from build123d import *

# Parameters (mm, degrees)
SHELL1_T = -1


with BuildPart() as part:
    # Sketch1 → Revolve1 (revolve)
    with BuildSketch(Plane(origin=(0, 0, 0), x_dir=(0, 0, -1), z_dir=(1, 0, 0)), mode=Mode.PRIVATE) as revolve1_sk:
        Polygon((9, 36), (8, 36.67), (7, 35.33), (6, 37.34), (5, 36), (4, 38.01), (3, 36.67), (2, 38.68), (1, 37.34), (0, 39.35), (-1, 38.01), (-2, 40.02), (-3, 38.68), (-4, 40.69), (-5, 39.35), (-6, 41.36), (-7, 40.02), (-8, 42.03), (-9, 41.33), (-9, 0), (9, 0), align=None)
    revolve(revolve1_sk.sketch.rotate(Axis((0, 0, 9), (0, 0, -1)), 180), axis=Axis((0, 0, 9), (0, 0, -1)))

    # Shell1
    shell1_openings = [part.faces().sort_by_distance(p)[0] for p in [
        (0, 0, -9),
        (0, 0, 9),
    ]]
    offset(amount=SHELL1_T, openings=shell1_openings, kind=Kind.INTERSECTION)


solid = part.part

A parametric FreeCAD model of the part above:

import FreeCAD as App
import Part
import Sketcher
from FreeCAD import Vector
Q = App.Units.Quantity


def faces_at(feature, points):
    """Names of the faces that lie closest to the given points."""
    faces = feature.Shape.Faces
    near = lambda p: min(range(len(faces)), key=lambda i: faces[i].distToShape(Part.Vertex(*p))[0])
    return sorted({f"Face{near(p) + 1}" for p in points})


def add_polygon(sketch, points):
    """Adds a closed chain of lines whose ends are joined by coincident constraints."""
    first, n = sketch.GeometryCount, len(points)
    for a, b in zip(points, points[1:] + points[:1]):
        sketch.addGeometry(Part.LineSegment(App.Vector(*a, 0), App.Vector(*b, 0)), False)
    for i in range(n):
        sketch.addConstraint(Sketcher.Constraint("Coincident", first + i, 2, first + (i + 1) % n, 1))

doc = App.newDocument("Part")
body = doc.addObject("PartDesign::Body", "Body")

sketch1 = body.newObject("Sketcher::SketchObject", "Sketch")
sketch1.AttachmentSupport = (doc.getObject("YZ_Plane"), [""])
sketch1.MapMode = "FlatFace"
add_polygon(sketch1, [(36, -9), (36.7, -8), (35.3, -7), (37.3, -6), (36, -5), (38, -4), (36.7, -3), (38.7, -2), (37.3, -1), (39.4, 0), (38, 1), (40, 2), (38.7, 3), (40.7, 4), (39.4, 5), (41.4, 6), (40, 7), (42, 8), (41.3, 9), (0, 9), (0, -9)])
sketch1.addConstraint(Sketcher.Constraint("Horizontal", 18))
sketch1.addConstraint(Sketcher.Constraint("Vertical", 19))
sketch1.addConstraint(Sketcher.Constraint("Horizontal", 20))
sketch1.addConstraint(Sketcher.Constraint("Symmetric", 18, 2, 19, 2, -1, 1))
sketch1.addConstraint(Sketcher.Constraint("PointOnObject", 8, 2, -1))
sketch1.addConstraint(Sketcher.Constraint("Parallel", 1, 3))
sketch1.addConstraint(Sketcher.Constraint("Parallel", 2, 4))
sketch1.addConstraint(Sketcher.Constraint("Parallel", 3, 5))
sketch1.addConstraint(Sketcher.Constraint("Parallel", 4, 6))
sketch1.addConstraint(Sketcher.Constraint("Parallel", 5, 7))
sketch1.addConstraint(Sketcher.Constraint("Parallel", 6, 8))
sketch1.addConstraint(Sketcher.Constraint("Parallel", 7, 9))
sketch1.addConstraint(Sketcher.Constraint("Parallel", 8, 10))
sketch1.addConstraint(Sketcher.Constraint("Parallel", 9, 11))
sketch1.addConstraint(Sketcher.Constraint("Parallel", 10, 12))
sketch1.addConstraint(Sketcher.Constraint("Parallel", 11, 13))
sketch1.addConstraint(Sketcher.Constraint("Parallel", 12, 14))
sketch1.addConstraint(Sketcher.Constraint("Parallel", 13, 15))
sketch1.addConstraint(Sketcher.Constraint("Parallel", 14, 16))
sketch1.addConstraint(Sketcher.Constraint("Vertical", 0, 2, 5, 2))
sketch1.addConstraint(Sketcher.Constraint("Vertical", 2, 2, 7, 2))
sketch1.addConstraint(Sketcher.Constraint("Vertical", 4, 2, 9, 2))
sketch1.addConstraint(Sketcher.Constraint("Vertical", 6, 2, 11, 2))
sketch1.addConstraint(Sketcher.Constraint("Vertical", 8, 2, 13, 2))
sketch1.addConstraint(Sketcher.Constraint("Vertical", 10, 2, 15, 2))
sketch1.addConstraint(Sketcher.Constraint("Vertical", 3, 2, 20, 2))
sketch1.addConstraint(Sketcher.Constraint("Equal", 1, 3))
sketch1.addConstraint(Sketcher.Constraint("Equal", 2, 4))
sketch1.addConstraint(Sketcher.Constraint("Equal", 3, 5))
sketch1.addConstraint(Sketcher.Constraint("Equal", 4, 6))
sketch1.addConstraint(Sketcher.Constraint("Equal", 6, 8))
sketch1.addConstraint(Sketcher.Constraint("Equal", 8, 10))
sketch1.addConstraint(Sketcher.Constraint("Equal", 10, 12))
sketch1.addConstraint(Sketcher.Constraint("Equal", 12, 14))
sketch1.addConstraint(Sketcher.Constraint("Equal", 14, 16))
sketch1.addConstraint(Sketcher.Constraint("DistanceX", 20, 1, 20, 2, Q("36 mm")))
sketch1.addConstraint(Sketcher.Constraint("DistanceY", 19, 2, 19, 1, Q("18 mm")))
sketch1.addConstraint(Sketcher.Constraint("DistanceY", 0, 2, -1, 1, Q("8 mm")))
sketch1.addConstraint(Sketcher.Constraint("DistanceY", 1, 2, -1, 1, Q("7 mm")))
sketch1.addConstraint(Sketcher.Constraint("DistanceX", 18, 2, 18, 1, Q("41.33 mm")))
sketch1.addConstraint(Sketcher.Constraint("DistanceX", 17, 2, 16, 2, Q("0.7 mm")))
revolution = body.newObject("PartDesign::Revolution", "Revolution")
revolution.Profile = sketch1
revolution.ReferenceAxis = (sketch1, ["V_Axis"])
revolution.Angle = 360
doc.recompute()

thickness = body.newObject("PartDesign::Thickness", "Thickness")
thickness.Base = (revolution, faces_at(revolution, [(0, 0, -9), (0, 0, 9)]))
thickness.Value = 1
thickness.Reversed = True
thickness.Join = "Intersection"

doc.recompute()
